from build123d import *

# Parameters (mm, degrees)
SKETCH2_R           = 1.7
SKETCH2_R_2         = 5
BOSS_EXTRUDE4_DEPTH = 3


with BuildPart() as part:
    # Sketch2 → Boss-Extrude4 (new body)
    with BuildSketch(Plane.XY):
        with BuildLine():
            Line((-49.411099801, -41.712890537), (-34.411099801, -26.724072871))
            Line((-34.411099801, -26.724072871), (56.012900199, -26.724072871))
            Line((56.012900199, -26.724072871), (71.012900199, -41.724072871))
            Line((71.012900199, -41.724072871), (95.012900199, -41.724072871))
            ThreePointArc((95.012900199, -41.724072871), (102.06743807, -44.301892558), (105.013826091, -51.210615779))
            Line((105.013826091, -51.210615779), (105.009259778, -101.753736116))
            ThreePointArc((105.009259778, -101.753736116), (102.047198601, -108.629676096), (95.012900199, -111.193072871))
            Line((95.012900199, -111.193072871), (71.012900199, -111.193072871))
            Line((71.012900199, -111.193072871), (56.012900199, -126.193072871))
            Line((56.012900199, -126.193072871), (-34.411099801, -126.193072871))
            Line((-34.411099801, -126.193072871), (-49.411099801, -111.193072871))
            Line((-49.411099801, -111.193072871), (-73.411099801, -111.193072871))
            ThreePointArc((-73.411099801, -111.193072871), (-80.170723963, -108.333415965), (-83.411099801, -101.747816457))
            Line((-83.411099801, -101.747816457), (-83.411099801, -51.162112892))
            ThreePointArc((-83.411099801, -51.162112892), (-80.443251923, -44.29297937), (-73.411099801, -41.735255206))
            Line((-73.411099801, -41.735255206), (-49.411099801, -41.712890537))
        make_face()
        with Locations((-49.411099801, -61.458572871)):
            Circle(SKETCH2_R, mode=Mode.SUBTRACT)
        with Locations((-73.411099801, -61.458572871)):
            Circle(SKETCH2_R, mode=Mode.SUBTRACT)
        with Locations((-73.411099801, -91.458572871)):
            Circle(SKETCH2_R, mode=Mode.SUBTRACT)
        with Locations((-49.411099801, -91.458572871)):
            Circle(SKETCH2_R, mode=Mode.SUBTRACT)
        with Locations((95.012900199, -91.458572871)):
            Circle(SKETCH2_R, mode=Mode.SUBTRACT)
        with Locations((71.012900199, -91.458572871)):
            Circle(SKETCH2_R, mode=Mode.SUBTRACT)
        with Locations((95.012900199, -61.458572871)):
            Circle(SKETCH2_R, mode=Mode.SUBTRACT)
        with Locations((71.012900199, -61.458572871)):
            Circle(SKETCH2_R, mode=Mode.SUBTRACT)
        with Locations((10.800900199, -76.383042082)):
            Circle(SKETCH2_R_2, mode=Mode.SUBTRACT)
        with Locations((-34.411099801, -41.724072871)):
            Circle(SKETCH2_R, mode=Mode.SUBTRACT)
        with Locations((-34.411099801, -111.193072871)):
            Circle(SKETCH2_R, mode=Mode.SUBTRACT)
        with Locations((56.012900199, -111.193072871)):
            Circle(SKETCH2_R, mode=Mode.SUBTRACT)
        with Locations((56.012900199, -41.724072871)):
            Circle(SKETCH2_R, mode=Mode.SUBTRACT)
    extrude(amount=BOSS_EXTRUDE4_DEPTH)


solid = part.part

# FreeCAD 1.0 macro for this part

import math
import FreeCAD as App
import Part
import Sketcher

V = App.Vector

doc = App.newDocument("Part")
params = doc.addObject("Spreadsheet::Sheet", "Params")
for row, (alias, value) in enumerate([
    ("sketch1_diameter", "10 mm"),
    ("sketch1_diameter2", "3.4 mm"),
    ("sketch1_width", "24 mm"),
    ("pad1_length", "3 mm"),
], start=1):
    params.set(f"A{row}", alias)
    params.set(f"B{row}", "=" + value)
    params.setAlias(f"B{row}", alias)

body = doc.addObject("PartDesign::Body", "Body")

# Sketch on XY plane
sketch1 = body.newObject("Sketcher::SketchObject", "Sketch")
sketch1.AttachmentSupport = (doc.getObject("XY_Plane"), [""])
sketch1.MapMode = "FlatFace"
sketch1.addGeometry(Part.LineSegment(V(-34.4111, -26.724073, 0), V(-49.4111, -41.712891, 0)), False)
sketch1.addGeometry(Part.LineSegment(V(-49.4111, -41.712891, 0), V(-73.4111, -41.735255, 0)), False)
sketch1.addGeometry(Part.ArcOfCircle(Part.Circle(V(-73.960948, -51.1694, 0), V(0, 0, 1), 9.450154), math.radians(86.664413), math.radians(179.955821)), False)
sketch1.addGeometry(Part.LineSegment(V(-83.4111, -51.162113, 0), V(-83.4111, -101.747816, 0)), False)
sketch1.addGeometry(Part.ArcOfCircle(Part.Circle(V(-72.953417, -100.692219, 0), V(0, 0, 1), 10.510823), math.radians(-174.236091), math.radians(-92.495672)), False)
sketch1.addGeometry(Part.LineSegment(V(-73.4111, -111.193073, 0), V(-49.4111, -111.193073, 0)), False)
sketch1.addGeometry(Part.LineSegment(V(-49.4111, -111.193073, 0), V(-34.4111, -126.193073, 0)), False)
sketch1.addGeometry(Part.LineSegment(V(-34.4111, -126.193073, 0), V(56.0129, -126.193073, 0)), False)
sketch1.addGeometry(Part.LineSegment(V(56.0129, -126.193073, 0), V(71.0129, -111.193073, 0)), False)
sketch1.addGeometry(Part.LineSegment(V(71.0129, -111.193073, 0), V(95.0129, -111.193073, 0)), False)
sketch1.addGeometry(Part.ArcOfCircle(Part.Circle(V(95.559107, -101.758717, 0), V(0, 0, 1), 9.450154), math.radians(-93.313469), math.radians(0.030198)), False)
sketch1.addGeometry(Part.LineSegment(V(105.00926, -101.753736, 0), V(105.013826, -51.210616, 0)), False)
sketch1.addGeometry(Part.ArcOfCircle(Part.Circle(V(95.563817, -51.158155, 0), V(0, 0, 1), 9.450154), math.radians(-0.318069), math.radians(93.342077)), False)
sketch1.addGeometry(Part.LineSegment(V(95.0129, -41.724073, 0), V(71.0129, -41.724073, 0)), False)
sketch1.addGeometry(Part.LineSegment(V(71.0129, -41.724073, 0), V(56.0129, -26.724073, 0)), False)
sketch1.addGeometry(Part.LineSegment(V(56.0129, -26.724073, 0), V(-34.4111, -26.724073, 0)), False)
sketch1.addGeometry(Part.Circle(V(56.0129, -111.193073, 0), V(0, 0, 1), 1.7), False)
sketch1.addGeometry(Part.Circle(V(95.0129, -91.458573, 0), V(0, 0, 1), 1.7), False)
sketch1.addGeometry(Part.Circle(V(71.0129, -91.458573, 0), V(0, 0, 1), 1.7), False)
sketch1.addGeometry(Part.Circle(V(-34.4111, -111.193073, 0), V(0, 0, 1), 1.7), False)
sketch1.addGeometry(Part.Circle(V(-49.4111, -91.458573, 0), V(0, 0, 1), 1.7), False)
sketch1.addGeometry(Part.Circle(V(-73.4111, -91.458573, 0), V(0, 0, 1), 1.7), False)
sketch1.addGeometry(Part.Circle(V(95.0129, -61.458573, 0), V(0, 0, 1), 1.7), False)
sketch1.addGeometry(Part.Circle(V(71.0129, -61.458573, 0), V(0, 0, 1), 1.7), False)
sketch1.addGeometry(Part.Circle(V(56.0129, -41.724073, 0), V(0, 0, 1), 1.7), False)
sketch1.addGeometry(Part.Circle(V(10.8009, -76.383042, 0), V(0, 0, 1), 5), False)
sketch1.addGeometry(Part.Circle(V(-49.4111, -61.458573, 0), V(0, 0, 1), 1.7), False)
sketch1.addGeometry(Part.Circle(V(-73.4111, -61.458573, 0), V(0, 0, 1), 1.7), False)
sketch1.addGeometry(Part.Circle(V(-34.4111, -41.724073, 0), V(0, 0, 1), 1.7), False)
sketch1.addConstraint(Sketcher.Constraint("Coincident", 0, 2, 1, 1))
sketch1.addConstraint(Sketcher.Constraint("Coincident", 1, 2, 2, 1))
sketch1.addConstraint(Sketcher.Constraint("Coincident", 2, 2, 3, 1))
sketch1.addConstraint(Sketcher.Constraint("Coincident", 3, 2, 4, 1))
sketch1.addConstraint(Sketcher.Constraint("Coincident", 4, 2, 5, 1))
sketch1.addConstraint(Sketcher.Constraint("Coincident", 5, 2, 6, 1))
sketch1.addConstraint(Sketcher.Constraint("Coincident", 6, 2, 7, 1))
sketch1.addConstraint(Sketcher.Constraint("Coincident", 7, 2, 8, 1))
sketch1.addConstraint(Sketcher.Constraint("Coincident", 8, 2, 9, 1))
sketch1.addConstraint(Sketcher.Constraint("Coincident", 9, 2, 10, 1))
sketch1.addConstraint(Sketcher.Constraint("Coincident", 10, 2, 11, 1))
sketch1.addConstraint(Sketcher.Constraint("Coincident", 11, 2, 12, 1))
sketch1.addConstraint(Sketcher.Constraint("Coincident", 12, 2, 13, 1))
sketch1.addConstraint(Sketcher.Constraint("Coincident", 13, 2, 14, 1))
sketch1.addConstraint(Sketcher.Constraint("Coincident", 14, 2, 15, 1))
sketch1.addConstraint(Sketcher.Constraint("Coincident", 15, 2, 0, 1))
sketch1.addConstraint(Sketcher.Constraint("Vertical", 3))
sketch1.addConstraint(Sketcher.Constraint("Horizontal", 5))
sketch1.addConstraint(Sketcher.Constraint("Horizontal", 7))
sketch1.addConstraint(Sketcher.Constraint("Horizontal", 9))
sketch1.addConstraint(Sketcher.Constraint("Horizontal", 13))
sketch1.addConstraint(Sketcher.Constraint("Horizontal", 15))
sketch1.addConstraint(Sketcher.Constraint("Equal", 2, 10))
sketch1.addConstraint(Sketcher.Constraint("Equal", 10, 12))
sketch1.addConstraint(Sketcher.Constraint("Equal", 16, 17))
sketch1.addConstraint(Sketcher.Constraint("Equal", 17, 18))
sketch1.addConstraint(Sketcher.Constraint("Equal", 18, 19))
sketch1.addConstraint(Sketcher.Constraint("Equal", 19, 20))
sketch1.addConstraint(Sketcher.Constraint("Equal", 20, 21))
sketch1.addConstraint(Sketcher.Constraint("Equal", 21, 22))
sketch1.addConstraint(Sketcher.Constraint("Equal", 22, 23))
sketch1.addConstraint(Sketcher.Constraint("Equal", 23, 24))
sketch1.addConstraint(Sketcher.Constraint("Equal", 24, 26))
sketch1.addConstraint(Sketcher.Constraint("Equal", 26, 27))
sketch1.addConstraint(Sketcher.Constraint("Equal", 27, 28))
sketch1.addConstraint(Sketcher.Constraint("Perpendicular", 6, 8))
sketch1.addConstraint(Sketcher.Constraint("Perpendicular", 8, 14))
sketch1.addConstraint(Sketcher.Constraint("Horizontal", 17, 3, 18, 3))
sketch1.addConstraint(Sketcher.Constraint("Horizontal", 16, 3, 19, 3))
sketch1.addConstraint(Sketcher.Constraint("Horizontal", 18, 3, 20, 3))
sketch1.addConstraint(Sketcher.Constraint("Horizontal", 20, 3, 21, 3))
sketch1.addConstraint(Sketcher.Constraint("Horizontal", 22, 3, 23, 3))
sketch1.addConstraint(Sketcher.Constraint("Horizontal", 23, 3, 26, 3))
sketch1.addConstraint(Sketcher.Constraint("Horizontal", 26, 3, 27, 3))
sketch1.addConstraint(Sketcher.Constraint("Horizontal", 24, 3, 28, 3))
sketch1.addConstraint(Sketcher.Constraint("Horizontal", 19, 3, 4, 2))
sketch1.addConstraint(Sketcher.Constraint("Horizontal", 5, 2, 8, 2))
sketch1.addConstraint(Sketcher.Constraint("Horizontal", 28, 3, 12, 2))
sketch1.addConstraint(Sketcher.Constraint("Vertical", 17, 3, 22, 3))
sketch1.addConstraint(Sketcher.Constraint("Vertical", 18, 3, 23, 3))
sketch1.addConstraint(Sketcher.Constraint("Vertical", 16, 3, 24, 3))
sketch1.addConstraint(Sketcher.Constraint("Vertical", 20, 3, 26, 3))
sketch1.addConstraint(Sketcher.Constraint("Vertical", 21, 3, 27, 3))
sketch1.addConstraint(Sketcher.Constraint("Vertical", 19, 3, 28, 3))
sketch1.addConstraint(Sketcher.Constraint("Vertical", 26, 3, 0, 2))
sketch1.addConstraint(Sketcher.Constraint("Vertical", 27, 3, 1, 2))
sketch1.addConstraint(Sketcher.Constraint("Vertical", 1, 2, 4, 2))
sketch1.addConstraint(Sketcher.Constraint("Vertical", 0, 2, 5, 2))
sketch1.addConstraint(Sketcher.Constraint("Vertical", 28, 3, 6, 2))
sketch1.addConstraint(Sketcher.Constraint("Vertical", 24, 3, 7, 2))
sketch1.addConstraint(Sketcher.Constraint("Vertical", 23, 3, 8, 2))
sketch1.addConstraint(Sketcher.Constraint("Vertical", 22, 3, 9, 2))
sketch1.addConstraint(Sketcher.Constraint("Vertical", 9, 2, 12, 2))
sketch1.addConstraint(Sketcher.Constraint("Vertical", 8, 2, 13, 2))
sketch1.addConstraint(Sketcher.Constraint("Vertical", 7, 2, 14, 2))
sketch1.addConstraint(Sketcher.Constraint("Vertical", 6, 2, 15, 2))
sketch1.addConstraint(Sketcher.Constraint("Equal", 5, 9))
sketch1.addConstraint(Sketcher.Constraint("Equal", 6, 8))
sketch1.addConstraint(Sketcher.Constraint("Diameter", 25, 10.0))
sketch1.addConstraint(Sketcher.Constraint("Diameter", 16, 3.4))
sketch1.addConstraint(Sketcher.Constraint("DistanceX", 5, 1, 5, 2, 24.0))
sketch1.addConstraint(Sketcher.Constraint("DistanceX", 16, 3, 17, 3, 39.0))
sketch1.addConstraint(Sketcher.Constraint("DistanceY", 17, 3, 22, 3, 30.0))
sketch1.addConstraint(Sketcher.Constraint("DistanceX", 2, 2, 1, 2, 10.0))
sketch1.addConstraint(Sketcher.Constraint("DistanceX", 7, 1, 7, 2, 90.424))
sketch1.addConstraint(Sketcher.Constraint("Radius", 2, 9.450154))
sketch1.addConstraint(Sketcher.Constraint("Radius", 4, 10.510823))
sketch1.addConstraint(Sketcher.Constraint("DistanceX", 25, 3, 24, 3, 45.212))
sketch1.addConstraint(Sketcher.Constraint("DistanceY", 2, 3, -1, 1, 51.1694))
sketch1.addConstraint(Sketcher.Constraint("DistanceX", -1, 1, 16, 3, 56.0129))
sketch1.addConstraint(Sketcher.Constraint("DistanceY", 10, 3, 4, 3, 1.066498))
sketch1.addConstraint(Sketcher.Constraint("DistanceY", 16, 3, 17, 3, 19.7345))
sketch1.addConstraint(Sketcher.Constraint("DistanceY", 23, 3, 24, 3, 19.7345))
sketch1.addConstraint(Sketcher.Constraint("Distance", 11, 50.543121))
sketch1.addConstraint(Sketcher.Constraint("DistanceY", 3, 2, 3, 1, 50.585704))
sketch1.addConstraint(Sketcher.Constraint("DistanceY", 4, 3, -1, 1, 100.692219))
sketch1.addConstraint(Sketcher.Constraint("DistanceY", 0, 2, -1, 1, 41.712891))
sketch1.addConstraint(Sketcher.Constraint("DistanceX", -1, 1, 10, 2, 105.00926))
sketch1.addConstraint(Sketcher.Constraint("DistanceX", 10, 3, 12, 3, 0.004711))
sketch1.addConstraint(Sketcher.Constraint("DistanceY", 25, 3, 24, 3, 34.658969))
sketch1.addConstraint(Sketcher.Constraint("DistanceY", 10, 3, 10, 2, 0.004981))
sketch1.setExpression("Constraints[68]", "Params.sketch1_diameter")
sketch1.setExpression("Constraints[69]", "Params.sketch1_diameter2")
sketch1.setExpression("Constraints[70]", "Params.sketch1_width")
pad1 = body.newObject("PartDesign::Pad", "Pad")
pad1.Profile = sketch1
pad1.setExpression("Length", "Params.pad1_length")

doc.recompute()
